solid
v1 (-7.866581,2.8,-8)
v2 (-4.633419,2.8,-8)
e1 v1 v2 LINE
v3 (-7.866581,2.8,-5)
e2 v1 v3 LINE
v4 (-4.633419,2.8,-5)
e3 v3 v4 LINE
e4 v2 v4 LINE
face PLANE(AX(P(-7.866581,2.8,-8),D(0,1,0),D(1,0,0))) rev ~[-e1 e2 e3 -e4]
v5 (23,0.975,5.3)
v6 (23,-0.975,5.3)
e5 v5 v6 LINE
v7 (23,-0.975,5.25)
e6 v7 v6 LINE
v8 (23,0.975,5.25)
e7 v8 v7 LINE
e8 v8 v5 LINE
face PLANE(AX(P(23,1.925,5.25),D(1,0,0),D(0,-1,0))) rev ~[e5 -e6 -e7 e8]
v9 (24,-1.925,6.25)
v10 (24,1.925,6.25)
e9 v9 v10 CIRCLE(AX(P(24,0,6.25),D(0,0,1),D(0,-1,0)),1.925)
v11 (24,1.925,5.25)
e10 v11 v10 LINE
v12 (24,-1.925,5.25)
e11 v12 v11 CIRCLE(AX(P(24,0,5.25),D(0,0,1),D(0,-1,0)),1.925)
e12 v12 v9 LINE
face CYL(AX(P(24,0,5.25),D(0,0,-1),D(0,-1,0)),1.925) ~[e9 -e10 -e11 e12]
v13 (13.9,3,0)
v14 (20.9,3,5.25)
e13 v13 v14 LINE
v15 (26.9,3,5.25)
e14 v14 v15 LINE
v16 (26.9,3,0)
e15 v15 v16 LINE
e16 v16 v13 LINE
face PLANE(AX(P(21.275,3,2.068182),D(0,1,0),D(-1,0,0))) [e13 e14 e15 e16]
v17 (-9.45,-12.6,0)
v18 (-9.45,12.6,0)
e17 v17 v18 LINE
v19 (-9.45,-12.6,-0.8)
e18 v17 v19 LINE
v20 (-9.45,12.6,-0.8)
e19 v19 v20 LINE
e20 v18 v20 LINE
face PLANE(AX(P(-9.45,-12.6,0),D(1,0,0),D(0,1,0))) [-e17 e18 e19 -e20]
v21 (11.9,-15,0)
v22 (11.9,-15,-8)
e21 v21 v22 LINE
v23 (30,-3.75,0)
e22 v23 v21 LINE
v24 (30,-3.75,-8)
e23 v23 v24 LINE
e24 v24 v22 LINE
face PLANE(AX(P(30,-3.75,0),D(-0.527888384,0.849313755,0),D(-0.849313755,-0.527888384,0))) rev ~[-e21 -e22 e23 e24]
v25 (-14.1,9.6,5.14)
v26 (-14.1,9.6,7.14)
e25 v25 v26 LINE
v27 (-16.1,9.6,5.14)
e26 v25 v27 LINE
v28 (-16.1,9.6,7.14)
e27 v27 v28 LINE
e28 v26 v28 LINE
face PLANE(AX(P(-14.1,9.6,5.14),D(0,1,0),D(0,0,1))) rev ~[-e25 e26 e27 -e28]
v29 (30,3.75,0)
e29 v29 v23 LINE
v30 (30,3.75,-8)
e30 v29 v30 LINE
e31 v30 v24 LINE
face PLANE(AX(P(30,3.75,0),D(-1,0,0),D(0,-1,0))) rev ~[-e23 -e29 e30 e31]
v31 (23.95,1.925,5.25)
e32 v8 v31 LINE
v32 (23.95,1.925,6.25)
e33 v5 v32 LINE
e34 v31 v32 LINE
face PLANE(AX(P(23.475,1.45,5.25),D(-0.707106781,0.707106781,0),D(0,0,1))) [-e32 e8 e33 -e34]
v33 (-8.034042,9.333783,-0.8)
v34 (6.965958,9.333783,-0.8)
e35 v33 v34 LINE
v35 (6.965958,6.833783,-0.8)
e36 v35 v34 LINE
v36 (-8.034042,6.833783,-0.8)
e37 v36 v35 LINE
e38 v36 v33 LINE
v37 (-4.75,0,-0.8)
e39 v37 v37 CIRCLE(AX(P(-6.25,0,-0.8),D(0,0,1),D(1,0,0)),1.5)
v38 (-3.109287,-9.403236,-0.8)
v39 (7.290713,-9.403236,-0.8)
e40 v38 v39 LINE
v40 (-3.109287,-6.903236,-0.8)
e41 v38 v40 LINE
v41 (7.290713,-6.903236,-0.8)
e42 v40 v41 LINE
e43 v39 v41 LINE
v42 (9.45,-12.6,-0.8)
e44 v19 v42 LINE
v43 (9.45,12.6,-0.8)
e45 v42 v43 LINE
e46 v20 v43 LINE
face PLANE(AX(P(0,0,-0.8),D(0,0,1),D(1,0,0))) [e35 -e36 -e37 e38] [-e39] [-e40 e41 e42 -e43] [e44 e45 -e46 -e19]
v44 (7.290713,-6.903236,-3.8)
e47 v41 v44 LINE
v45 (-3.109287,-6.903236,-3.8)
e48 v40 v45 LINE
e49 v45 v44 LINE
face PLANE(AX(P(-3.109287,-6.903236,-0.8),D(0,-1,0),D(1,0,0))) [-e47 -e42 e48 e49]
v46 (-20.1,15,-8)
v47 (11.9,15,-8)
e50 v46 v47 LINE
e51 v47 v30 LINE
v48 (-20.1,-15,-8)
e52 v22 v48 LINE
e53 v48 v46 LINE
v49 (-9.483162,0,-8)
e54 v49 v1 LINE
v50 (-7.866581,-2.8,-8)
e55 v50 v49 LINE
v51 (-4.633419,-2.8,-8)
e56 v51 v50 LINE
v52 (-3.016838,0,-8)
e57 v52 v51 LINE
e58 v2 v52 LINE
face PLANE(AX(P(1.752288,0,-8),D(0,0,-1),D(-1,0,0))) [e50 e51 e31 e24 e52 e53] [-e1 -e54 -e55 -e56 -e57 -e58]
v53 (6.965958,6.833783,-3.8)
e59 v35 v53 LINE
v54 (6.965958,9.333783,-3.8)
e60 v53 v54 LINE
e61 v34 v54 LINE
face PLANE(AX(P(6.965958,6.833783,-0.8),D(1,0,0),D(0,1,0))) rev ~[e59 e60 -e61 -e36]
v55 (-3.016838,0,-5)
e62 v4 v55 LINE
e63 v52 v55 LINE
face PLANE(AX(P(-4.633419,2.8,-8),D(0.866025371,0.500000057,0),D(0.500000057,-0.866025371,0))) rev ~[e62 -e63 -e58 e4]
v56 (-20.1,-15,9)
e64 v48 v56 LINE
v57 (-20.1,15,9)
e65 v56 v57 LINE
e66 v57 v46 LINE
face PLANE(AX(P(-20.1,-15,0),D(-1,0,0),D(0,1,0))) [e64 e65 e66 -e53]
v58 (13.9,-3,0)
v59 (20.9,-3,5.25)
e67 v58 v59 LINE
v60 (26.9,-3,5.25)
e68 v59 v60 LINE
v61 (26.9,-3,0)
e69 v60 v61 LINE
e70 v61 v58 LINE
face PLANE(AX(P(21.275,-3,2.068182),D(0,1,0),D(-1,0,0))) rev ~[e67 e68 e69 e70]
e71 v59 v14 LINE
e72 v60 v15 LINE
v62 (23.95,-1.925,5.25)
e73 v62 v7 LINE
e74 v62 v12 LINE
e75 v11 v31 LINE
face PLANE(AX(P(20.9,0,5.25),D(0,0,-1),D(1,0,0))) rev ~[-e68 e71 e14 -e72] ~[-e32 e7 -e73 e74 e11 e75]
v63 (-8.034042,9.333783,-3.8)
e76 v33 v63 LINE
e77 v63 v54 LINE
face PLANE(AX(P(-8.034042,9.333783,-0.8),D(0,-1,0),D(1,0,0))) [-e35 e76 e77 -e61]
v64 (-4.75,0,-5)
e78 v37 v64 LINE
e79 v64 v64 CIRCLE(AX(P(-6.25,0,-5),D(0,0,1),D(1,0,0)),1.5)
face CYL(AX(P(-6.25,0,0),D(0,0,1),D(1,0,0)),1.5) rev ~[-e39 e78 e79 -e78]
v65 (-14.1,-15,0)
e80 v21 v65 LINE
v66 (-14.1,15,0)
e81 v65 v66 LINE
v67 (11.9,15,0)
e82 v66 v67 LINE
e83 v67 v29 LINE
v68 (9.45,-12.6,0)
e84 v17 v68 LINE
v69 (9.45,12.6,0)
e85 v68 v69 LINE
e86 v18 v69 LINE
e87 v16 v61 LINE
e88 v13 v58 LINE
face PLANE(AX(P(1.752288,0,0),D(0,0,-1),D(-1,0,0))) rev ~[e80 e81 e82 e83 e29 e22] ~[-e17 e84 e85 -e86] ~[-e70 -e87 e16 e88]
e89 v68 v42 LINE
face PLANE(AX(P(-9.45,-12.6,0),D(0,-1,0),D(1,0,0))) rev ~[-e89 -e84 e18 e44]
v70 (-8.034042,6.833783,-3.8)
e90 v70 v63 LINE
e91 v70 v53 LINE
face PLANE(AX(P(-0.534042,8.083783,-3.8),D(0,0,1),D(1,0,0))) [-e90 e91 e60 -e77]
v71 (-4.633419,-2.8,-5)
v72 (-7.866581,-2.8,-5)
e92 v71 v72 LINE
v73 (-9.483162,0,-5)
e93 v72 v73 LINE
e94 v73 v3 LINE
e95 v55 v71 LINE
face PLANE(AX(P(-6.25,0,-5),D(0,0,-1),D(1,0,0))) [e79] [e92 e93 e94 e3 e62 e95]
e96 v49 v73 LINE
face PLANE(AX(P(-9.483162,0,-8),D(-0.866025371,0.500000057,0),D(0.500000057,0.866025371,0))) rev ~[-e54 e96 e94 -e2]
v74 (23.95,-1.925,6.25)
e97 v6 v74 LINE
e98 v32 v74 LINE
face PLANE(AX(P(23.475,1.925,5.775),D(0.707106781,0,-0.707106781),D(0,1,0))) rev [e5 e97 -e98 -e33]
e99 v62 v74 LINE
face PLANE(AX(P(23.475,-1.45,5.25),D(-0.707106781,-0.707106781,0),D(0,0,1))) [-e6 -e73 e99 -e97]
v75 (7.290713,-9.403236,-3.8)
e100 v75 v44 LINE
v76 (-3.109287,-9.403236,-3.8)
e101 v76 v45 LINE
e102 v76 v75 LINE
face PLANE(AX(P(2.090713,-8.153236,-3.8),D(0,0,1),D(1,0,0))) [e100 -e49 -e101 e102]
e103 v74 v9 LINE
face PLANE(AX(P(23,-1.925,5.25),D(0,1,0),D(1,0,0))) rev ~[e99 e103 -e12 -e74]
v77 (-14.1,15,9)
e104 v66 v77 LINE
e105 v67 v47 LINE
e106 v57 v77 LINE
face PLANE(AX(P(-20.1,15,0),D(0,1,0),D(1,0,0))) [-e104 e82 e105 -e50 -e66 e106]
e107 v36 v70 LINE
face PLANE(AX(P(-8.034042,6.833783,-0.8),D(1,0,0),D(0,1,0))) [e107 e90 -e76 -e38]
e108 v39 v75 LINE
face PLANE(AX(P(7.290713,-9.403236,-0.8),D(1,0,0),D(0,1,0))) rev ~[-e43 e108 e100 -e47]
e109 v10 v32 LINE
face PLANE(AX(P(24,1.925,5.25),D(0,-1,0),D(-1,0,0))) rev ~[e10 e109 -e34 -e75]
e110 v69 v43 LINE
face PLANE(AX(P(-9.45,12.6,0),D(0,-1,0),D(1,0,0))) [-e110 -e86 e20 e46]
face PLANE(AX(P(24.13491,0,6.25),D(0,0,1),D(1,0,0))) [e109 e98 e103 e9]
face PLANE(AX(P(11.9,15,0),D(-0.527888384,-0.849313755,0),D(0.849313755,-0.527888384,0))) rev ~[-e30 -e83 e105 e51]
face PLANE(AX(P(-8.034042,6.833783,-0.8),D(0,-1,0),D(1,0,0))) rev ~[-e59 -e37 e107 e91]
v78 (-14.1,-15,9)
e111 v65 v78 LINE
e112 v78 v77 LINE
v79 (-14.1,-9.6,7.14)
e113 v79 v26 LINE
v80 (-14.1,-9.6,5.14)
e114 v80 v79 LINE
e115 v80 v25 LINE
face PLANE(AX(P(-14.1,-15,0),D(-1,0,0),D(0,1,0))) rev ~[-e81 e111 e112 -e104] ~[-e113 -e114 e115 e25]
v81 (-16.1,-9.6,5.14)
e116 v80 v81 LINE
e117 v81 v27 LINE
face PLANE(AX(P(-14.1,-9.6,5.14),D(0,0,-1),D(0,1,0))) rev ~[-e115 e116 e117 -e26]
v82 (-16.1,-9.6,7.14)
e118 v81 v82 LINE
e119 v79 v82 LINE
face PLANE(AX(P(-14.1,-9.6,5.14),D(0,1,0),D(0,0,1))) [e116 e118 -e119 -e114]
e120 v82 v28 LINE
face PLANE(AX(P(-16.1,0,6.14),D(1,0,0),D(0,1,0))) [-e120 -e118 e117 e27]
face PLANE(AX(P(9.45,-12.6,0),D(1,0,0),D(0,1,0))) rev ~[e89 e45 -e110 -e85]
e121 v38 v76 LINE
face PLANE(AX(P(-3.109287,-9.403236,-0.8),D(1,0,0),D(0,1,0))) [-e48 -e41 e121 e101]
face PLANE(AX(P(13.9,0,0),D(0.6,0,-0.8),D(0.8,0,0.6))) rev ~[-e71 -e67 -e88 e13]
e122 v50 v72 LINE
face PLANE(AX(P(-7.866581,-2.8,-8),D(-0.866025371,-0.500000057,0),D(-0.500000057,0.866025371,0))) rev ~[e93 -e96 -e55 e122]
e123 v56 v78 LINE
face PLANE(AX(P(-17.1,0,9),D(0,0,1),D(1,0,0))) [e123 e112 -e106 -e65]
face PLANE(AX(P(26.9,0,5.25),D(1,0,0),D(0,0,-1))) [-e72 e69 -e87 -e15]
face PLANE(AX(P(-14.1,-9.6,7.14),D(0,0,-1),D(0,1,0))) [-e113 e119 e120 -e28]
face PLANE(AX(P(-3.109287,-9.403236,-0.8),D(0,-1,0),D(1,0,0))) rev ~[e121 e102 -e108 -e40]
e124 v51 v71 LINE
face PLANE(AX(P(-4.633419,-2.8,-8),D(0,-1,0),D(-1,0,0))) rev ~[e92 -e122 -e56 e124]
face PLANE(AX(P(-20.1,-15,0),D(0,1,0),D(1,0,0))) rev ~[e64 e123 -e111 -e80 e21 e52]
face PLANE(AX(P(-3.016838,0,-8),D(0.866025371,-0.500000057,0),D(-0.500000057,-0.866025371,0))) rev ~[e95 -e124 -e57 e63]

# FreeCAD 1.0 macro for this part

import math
import FreeCAD as App
import Part
import Sketcher

V = App.Vector
Q = App.Units.Quantity


def edges_at(feature, points):
    """Names of the edges that pass closest to the given points."""
    edges = feature.Shape.Edges
    near = lambda p: min(range(len(edges)), key=lambda i: edges[i].distToShape(Part.Vertex(*p))[0])
    return sorted({f"Edge{near(p) + 1}" for p in points})


def add_polygon(sketch, points):
    """Adds a closed chain of lines whose ends are joined by coincident constraints."""
    first, n = sketch.GeometryCount, len(points)
    for a, b in zip(points, points[1:] + points[:1]):
        sketch.addGeometry(Part.LineSegment(App.Vector(*a, 0), App.Vector(*b, 0)), False)
    for i in range(n):
        sketch.addConstraint(Sketcher.Constraint("Coincident", first + i, 2, first + (i + 1) % n, 1))

doc = App.newDocument("Part")
body = doc.addObject("PartDesign::Body", "Body")

sketch1 = doc.addObject("Sketcher::SketchObject", "Sketch")
body.addObject(sketch1)
sketch1.AttachmentSupport = (doc.XY_Plane, [""])
sketch1.MapMode = "FlatFace"
add_polygon(sketch1, [(11.9, 15), (-20.1, 15), (-20.1, -15), (11.9, -15), (30, -3.75), (30, 3.75)])
sketch1.addGeometry(Part.Circle(V(-6.25, 0, 0), V(0, 0, 1), 1.5), False)
sketch1.addConstraint([
    Sketcher.Constraint("Horizontal", 0),
    Sketcher.Constraint("Vertical", 1),
    Sketcher.Constraint("Horizontal", 2),
    Sketcher.Constraint("Vertical", 4),
    Sketcher.Constraint("Symmetric", 2, 2, 5, 2, -1),
    Sketcher.Constraint("PointOnObject", 6, 3, -1),
    Sketcher.Constraint("Equal", 3, 5),
    Sketcher.Constraint("Diameter", 6, Q("3 mm")),
    Sketcher.Constraint("DistanceX", 0, 2, 0, 1, Q("32 mm")),
    Sketcher.Constraint("DistanceY", 1, 2, 1, 1, Q("30 mm")),
    Sketcher.Constraint("DistanceY", 4, 1, 4, 2, Q("7.5 mm")),
    Sketcher.Constraint("DistanceX", -1, 1, 3, 2, Q("30 mm")),
    Sketcher.Constraint("DistanceX", 0, 2, -1, 1, Q("20.1 mm")),
    Sketcher.Constraint("DistanceX", 6, 3, -1, 1, Q("6.25 mm")),
])
pad1 = doc.addObject("PartDesign::Pad", "Pad")
body.addObject(pad1)
pad1.Profile = sketch1
pad1.Length = 8
pad1.Reversed = True

sketch2 = doc.addObject("Sketcher::SketchObject", "Sketch001")
body.addObject(sketch2)
sketch2.AttachmentSupport = (doc.XY_Plane, [""])
sketch2.MapMode = "FlatFace"
add_polygon(sketch2, [(-9.45, 12.6), (-9.45, -12.6), (9.45, -12.6), (9.45, 12.6)])
sketch2.addConstraint([
    Sketcher.Constraint("Vertical", 0),
    Sketcher.Constraint("Horizontal", 1),
    Sketcher.Constraint("Vertical", 2),
    Sketcher.Constraint("Horizontal", 3),
    Sketcher.Constraint("Symmetric", 0, 2, 2, 2, -1, 1),
    Sketcher.Constraint("DistanceX", 1, 1, 1, 2, Q("18.9 mm")),
    Sketcher.Constraint("DistanceY", 0, 2, 0, 1, Q("25.2 mm")),
])
pocket1 = doc.addObject("PartDesign::Pocket", "Pocket")
body.addObject(pocket1)
pocket1.Profile = sketch2
pocket1.Length = 0.8

sketch3 = doc.addObject("Sketcher::SketchObject", "Sketch002")
body.addObject(sketch3)
sketch3.AttachmentSupport = (doc.XY_Plane, [""])
sketch3.MapMode = "FlatFace"
sketch3.AttachmentOffset = App.Placement(V(0, 0, -0.8), App.Rotation())
add_polygon(sketch3, [(-8.034042, 9.333783), (-8.034042, 6.833783), (6.965958, 6.833783), (6.965958, 9.333783)])
add_polygon(sketch3, [(-3.109287, -6.903236), (-3.109287, -9.403236), (7.290713, -9.403236), (7.290713, -6.903236)])
sketch3.addConstraint([
    Sketcher.Constraint("Vertical", 0),
    Sketcher.Constraint("Horizontal", 1),
    Sketcher.Constraint("Vertical", 2),
    Sketcher.Constraint("Horizontal", 3),
    Sketcher.Constraint("Vertical", 4),
    Sketcher.Constraint("Horizontal", 5),
    Sketcher.Constraint("Vertical", 6),
    Sketcher.Constraint("Horizontal", 7),
    Sketcher.Constraint("Equal", 2, 4),
    Sketcher.Constraint("DistanceX", 1, 1, 1, 2, Q("15 mm")),
    Sketcher.Constraint("DistanceX", 5, 1, 5, 2, Q("10.4 mm")),
    Sketcher.Constraint("DistanceY", 0, 2, 0, 1, Q("2.5 mm")),
    Sketcher.Constraint("DistanceY", 4, 2, 0, 2, Q("16.237019 mm")),
    Sketcher.Constraint("DistanceX", 0, 2, -1, 1, Q("8.034042 mm")),
    Sketcher.Constraint("DistanceY", -1, 1, 0, 2, Q("6.833783 mm")),
    Sketcher.Constraint("DistanceX", 4, 2, -1, 1, Q("3.109287 mm")),
])
pocket2 = doc.addObject("PartDesign::Pocket", "Pocket001")
body.addObject(pocket2)
pocket2.Profile = sketch3
pocket2.Length = 3

sketch4 = doc.addObject("Sketcher::SketchObject", "Sketch003")
body.addObject(sketch4)
sketch4.AttachmentSupport = (doc.XY_Plane, [""])
sketch4.MapMode = "FlatFace"
add_polygon(sketch4, [(-20.1, 15), (-20.1, -15), (-14.1, -15), (-14.1, 15)])
sketch4.addConstraint([
    Sketcher.Constraint("Vertical", 0),
    Sketcher.Constraint("Horizontal", 1),
    Sketcher.Constraint("Vertical", 2),
    Sketcher.Constraint("Horizontal", 3),
    Sketcher.Constraint("DistanceX", 1, 1, 1, 2, Q("6 mm")),
    Sketcher.Constraint("DistanceY", 0, 2, 0, 1, Q("30 mm")),
    Sketcher.Constraint("DistanceY", 0, 2, -1, 1, Q("15 mm")),
    Sketcher.Constraint("DistanceX", 0, 2, -1, 1, Q("20.1 mm")),
])
pad2 = doc.addObject("PartDesign::Pad", "Pad001")
body.addObject(pad2)
pad2.Profile = sketch4
pad2.Length = 9

sketch5 = doc.addObject("Sketcher::SketchObject", "Sketch004")
body.addObject(sketch5)
sketch5.AttachmentSupport = (doc.YZ_Plane, [""])
sketch5.MapMode = "FlatFace"
sketch5.AttachmentOffset = App.Placement(V(0, 0, -14.1), App.Rotation())
add_polygon(sketch5, [(-9.6, 7.14), (-9.6, 5.14), (9.6, 5.14), (9.6, 7.14)])
sketch5.addConstraint([
    Sketcher.Constraint("Vertical", 0),
    Sketcher.Constraint("Horizontal", 1),
    Sketcher.Constraint("Vertical", 2),
    Sketcher.Constraint("Horizontal", 3),
    Sketcher.Constraint("DistanceY", 0, 2, 0, 1, Q("2 mm")),
    Sketcher.Constraint("DistanceX", 1, 1, 1, 2, Q("19.2 mm")),
    Sketcher.Constraint("DistanceX", 0, 2, -1, 1, Q("9.6 mm")),
    Sketcher.Constraint("DistanceY", -1, 1, 0, 2, Q("5.14 mm")),
])
pocket3 = doc.addObject("PartDesign::Pocket", "Pocket002")
body.addObject(pocket3)
pocket3.Profile = sketch5
pocket3.Length = 2

sketch6 = doc.addObject("Sketcher::SketchObject", "Sketch005")
body.addObject(sketch6)
sketch6.AttachmentSupport = (doc.XY_Plane, [""])
sketch6.MapMode = "FlatFace"
sketch6.AttachmentOffset = App.Placement(V(0, 0, -8), App.Rotation())
add_polygon(sketch6, [(-4.633419, -2.8), (-7.866581, -2.8), (-9.483162, 0), (-7.866581, 2.8), (-4.633419, 2.8), (-3.016838, 0)])
sketch6.addConstraint([
    Sketcher.Constraint("Horizontal", 0),
    Sketcher.Constraint("Horizontal", 3),
    Sketcher.Constraint("Symmetric", 0, 2, 2, 2, -1),
    Sketcher.Constraint("PointOnObject", 1, 2, -1),
    Sketcher.Constraint("PointOnObject", 4, 2, -1),
    Sketcher.Constraint("Parallel", 1, 4),
    Sketcher.Constraint("Parallel", 2, 5),
    Sketcher.Constraint("Angle", 1, Q("120.000004 deg")),
    Sketcher.Constraint("DistanceY", 0, 2, -1, 1, Q("2.8 mm")),
    Sketcher.Constraint("DistanceX", 0, 2, 0, 1, Q("3.233162 mm")),
    Sketcher.Constraint("DistanceX", 0, 2, -1, 1, Q("7.866581 mm")),
])
pocket4 = doc.addObject("PartDesign::Pocket", "Pocket003")
body.addObject(pocket4)
pocket4.Profile = sketch6
pocket4.Length = 3
pocket4.Reversed = True

sketch7 = doc.addObject("Sketcher::SketchObject", "Sketch006")
body.addObject(sketch7)
sketch7.AttachmentSupport = (doc.XZ_Plane, [""])
sketch7.MapMode = "FlatFace"
add_polygon(sketch7, [(20.9, 5.25), (13.9, 0), (26.9, 0), (26.9, 5.25)])
sketch7.addConstraint([
    Sketcher.Constraint("Horizontal", 1),
    Sketcher.Constraint("Vertical", 2),
    Sketcher.Constraint("Horizontal", 3),
    Sketcher.Constraint("PointOnObject", 0, 2, -1),
    Sketcher.Constraint("DistanceX", 1, 1, 1, 2, Q("13 mm")),
    Sketcher.Constraint("DistanceX", 3, 2, 3, 1, Q("6 mm")),
    Sketcher.Constraint("DistanceY", 2, 1, 2, 2, Q("5.25 mm")),
    Sketcher.Constraint("DistanceX", -1, 1, 0, 2, Q("13.9 mm")),
])
pad3 = doc.addObject("PartDesign::Pad", "Pad002")
body.addObject(pad3)
pad3.Profile = sketch7
pad3.Type = "TwoLengths"
pad3.Length = 3
pad3.Length2 = 3

sketch8 = doc.addObject("Sketcher::SketchObject", "Sketch007")
body.addObject(sketch8)
sketch8.AttachmentSupport = (doc.XY_Plane, [""])
sketch8.MapMode = "FlatFace"
sketch8.AttachmentOffset = App.Placement(V(0, 0, 5.25), App.Rotation())
sketch8.addGeometry([
    Part.ArcOfCircle(Part.Circle(V(24, 0, 0), V(0, 0, 1), 1.925), math.radians(-90), math.radians(90)),
    Part.LineSegment(V(24, 1.925, 0), V(23, 1.925, 0)),
    Part.LineSegment(V(23, 1.925, 0), V(23, -1.925, 0)),
    Part.LineSegment(V(23, -1.925, 0), V(24, -1.925, 0)),
], False)
sketch8.addConstraint([
    Sketcher.Constraint("Tangent", 0, 2, 1, 1),
    Sketcher.Constraint("Coincident", 1, 2, 2, 1),
    Sketcher.Constraint("Coincident", 2, 2, 3, 1),
    Sketcher.Constraint("Tangent", 3, 2, 0, 1),
    Sketcher.Constraint("Horizontal", 1),
    Sketcher.Constraint("Vertical", 2),
    Sketcher.Constraint("Horizontal", 3),
    Sketcher.Constraint("PointOnObject", 0, 3, -1),
    Sketcher.Constraint("DistanceX", 1, 2, 1, 1, Q("1 mm")),
    Sketcher.Constraint("DistanceX", -1, 1, 0, 3, Q("24 mm")),
    Sketcher.Constraint("Radius", 0, Q("1.925 mm")),
])
pad4 = doc.addObject("PartDesign::Pad", "Pad003")
body.addObject(pad4)
pad4.Profile = sketch8
pad4.Length = 1
doc.recompute()

chamfer = doc.addObject("PartDesign::Chamfer", "Chamfer")
body.addObject(chamfer)
chamfer.Base = (pad4, edges_at(pad4, [(23, 0, 6.25), (23, -1.925, 5.75), (23, 1.925, 5.75)]))
chamfer.Size = 0.95

doc.recompute()
